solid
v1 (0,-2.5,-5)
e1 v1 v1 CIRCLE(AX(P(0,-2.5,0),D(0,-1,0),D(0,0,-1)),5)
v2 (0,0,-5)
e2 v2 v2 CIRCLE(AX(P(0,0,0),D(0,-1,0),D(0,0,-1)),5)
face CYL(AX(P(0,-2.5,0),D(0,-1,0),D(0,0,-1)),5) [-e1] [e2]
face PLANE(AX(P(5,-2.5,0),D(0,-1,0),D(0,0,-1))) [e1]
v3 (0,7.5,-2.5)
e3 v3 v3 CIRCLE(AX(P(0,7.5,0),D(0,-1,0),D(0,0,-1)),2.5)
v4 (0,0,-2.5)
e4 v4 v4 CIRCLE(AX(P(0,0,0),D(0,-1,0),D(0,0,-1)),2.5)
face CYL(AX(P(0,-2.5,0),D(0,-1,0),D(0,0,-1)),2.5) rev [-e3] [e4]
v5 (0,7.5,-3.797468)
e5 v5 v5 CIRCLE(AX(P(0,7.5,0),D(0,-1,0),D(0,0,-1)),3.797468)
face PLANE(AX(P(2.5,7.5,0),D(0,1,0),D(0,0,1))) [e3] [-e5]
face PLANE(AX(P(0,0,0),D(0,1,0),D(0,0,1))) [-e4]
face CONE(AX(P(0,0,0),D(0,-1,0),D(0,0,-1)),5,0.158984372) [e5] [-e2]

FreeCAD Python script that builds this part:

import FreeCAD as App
import Part
import Sketcher

V = App.Vector
Q = App.Units.Quantity


def add_polygon(sketch, points):
    """Adds a closed chain of lines whose ends are joined by coincident constraints."""
    first, n = sketch.GeometryCount, len(points)
    for a, b in zip(points, points[1:] + points[:1]):
        sketch.addGeometry(Part.LineSegment(App.Vector(*a, 0), App.Vector(*b, 0)), False)
    for i in range(n):
        sketch.addConstraint(Sketcher.Constraint("Coincident", first + i, 2, first + (i + 1) % n, 1))

doc = App.newDocument("Part")
body = doc.addObject("PartDesign::Body", "Body")

sketch1 = doc.addObject("Sketcher::SketchObject", "Sketch")
body.addObject(sketch1)
sketch1.AttachmentSupport = (doc.XY_Plane, [""])
sketch1.MapMode = "FlatFace"
add_polygon(sketch1, [(2.5, 0), (0, 0), (0, -2.5), (5, -2.5), (5, 0), (3.797468, 7.5), (2.5, 7.5)])
sketch1.addConstraint([
    Sketcher.Constraint("Horizontal", 0),
    Sketcher.Constraint("Vertical", 1),
    Sketcher.Constraint("Horizontal", 2),
    Sketcher.Constraint("Vertical", 3),
    Sketcher.Constraint("Horizontal", 5),
    Sketcher.Constraint("Vertical", 6),
    Sketcher.Constraint("Coincident", 0, 2, -1, 1),
    Sketcher.Constraint("PointOnObject", 3, 2, -1),
    Sketcher.Constraint("Equal", 0, 1),
    Sketcher.Constraint("DistanceX", 2, 1, 2, 2, Q("5 mm")),
    Sketcher.Constraint("DistanceX", 0, 2, 0, 1, Q("2.5 mm")),
    Sketcher.Constraint("DistanceY", 6, 2, 6, 1, Q("7.5 mm")),
    Sketcher.Constraint("DistanceX", 5, 2, 5, 1, Q("1.297468 mm")),
])
revolution = doc.addObject("PartDesign::Revolution", "Revolution")
body.addObject(revolution)
revolution.Profile = sketch1
revolution.ReferenceAxis = (sketch1, ["V_Axis"])
revolution.Angle = 360

doc.recompute()
